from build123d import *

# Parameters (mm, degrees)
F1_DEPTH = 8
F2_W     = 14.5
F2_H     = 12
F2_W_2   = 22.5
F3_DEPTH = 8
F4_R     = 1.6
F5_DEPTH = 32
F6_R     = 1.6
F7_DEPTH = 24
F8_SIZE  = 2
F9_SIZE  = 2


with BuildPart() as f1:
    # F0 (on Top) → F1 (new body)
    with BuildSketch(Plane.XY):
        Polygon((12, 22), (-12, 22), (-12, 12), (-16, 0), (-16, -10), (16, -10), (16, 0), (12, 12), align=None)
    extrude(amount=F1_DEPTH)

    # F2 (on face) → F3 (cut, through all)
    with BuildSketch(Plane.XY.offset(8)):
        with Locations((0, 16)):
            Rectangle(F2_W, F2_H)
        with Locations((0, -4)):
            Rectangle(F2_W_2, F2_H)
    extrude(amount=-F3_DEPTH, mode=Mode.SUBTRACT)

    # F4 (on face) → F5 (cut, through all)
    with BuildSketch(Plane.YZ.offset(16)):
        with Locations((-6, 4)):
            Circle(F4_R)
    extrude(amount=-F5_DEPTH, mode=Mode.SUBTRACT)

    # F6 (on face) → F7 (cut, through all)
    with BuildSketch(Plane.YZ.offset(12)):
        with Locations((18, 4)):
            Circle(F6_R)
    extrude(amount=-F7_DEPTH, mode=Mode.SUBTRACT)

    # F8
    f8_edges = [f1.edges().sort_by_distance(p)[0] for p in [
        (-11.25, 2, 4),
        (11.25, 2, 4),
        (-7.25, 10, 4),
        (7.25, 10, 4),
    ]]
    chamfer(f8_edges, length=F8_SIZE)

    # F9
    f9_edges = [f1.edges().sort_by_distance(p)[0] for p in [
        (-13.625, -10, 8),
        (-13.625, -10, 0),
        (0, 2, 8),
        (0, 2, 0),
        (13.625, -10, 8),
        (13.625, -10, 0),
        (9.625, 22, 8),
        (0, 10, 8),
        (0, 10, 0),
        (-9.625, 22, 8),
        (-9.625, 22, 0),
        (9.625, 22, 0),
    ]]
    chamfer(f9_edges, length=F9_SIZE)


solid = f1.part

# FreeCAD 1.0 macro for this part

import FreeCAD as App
import Part
import Sketcher
Q = App.Units.Quantity


def edges_at(feature, points):
    """Names of the edges that pass closest to the given points."""
    edges = feature.Shape.Edges
    near = lambda p: min(range(len(edges)), key=lambda i: edges[i].distToShape(Part.Vertex(*p))[0])
    return sorted({f"Edge{near(p) + 1}" for p in points})


def add_polygon(sketch, points):
    """Adds a closed chain of lines whose ends are joined by coincident constraints."""
    first, n = sketch.GeometryCount, len(points)
    for a, b in zip(points, points[1:] + points[:1]):
        sketch.addGeometry(Part.LineSegment(App.Vector(*a, 0), App.Vector(*b, 0)), False)
    for i in range(n):
        sketch.addConstraint(Sketcher.Constraint("Coincident", first + i, 2, first + (i + 1) % n, 1))

doc = App.newDocument("Part")
params = doc.addObject("Spreadsheet::Sheet", "Params")
for row, (alias, value) in enumerate([
    ("sketch1_width", "24 mm"),
    ("sketch1_width2", "32 mm"),
    ("sketch1_height", "10 mm"),
    ("pad1_length", "8 mm"),
    ("sketch2_height", "12 mm"),
    ("sketch2_width", "14.5 mm"),
    ("sketch2_width2", "22.5 mm"),
    ("sketch3_diameter", "3.2 mm"),
    ("sketch4_diameter", "3.2 mm"),
    ("chamfer_size", "2 mm"),
    ("chamfer2_size", "2 mm"),
], start=1):
    params.set(f"A{row}", alias)
    params.set(f"B{row}", "=" + value)
    params.setAlias(f"B{row}", alias)

body = doc.addObject("PartDesign::Body", "Body")

# Sketch on XY plane
sketch1 = body.newObject("Sketcher::SketchObject", "Sketch")
sketch1.AttachmentSupport = (doc.getObject("XY_Plane"), [""])
sketch1.MapMode = "FlatFace"
add_polygon(sketch1, [(12, 22), (-12, 22), (-12, 12), (-16, 0), (-16, -10), (16, -10), (16, 0), (12, 12)])  # lines 0-7
sketch1.addConstraint(Sketcher.Constraint("Horizontal", 0))
sketch1.addConstraint(Sketcher.Constraint("Vertical", 1))
sketch1.addConstraint(Sketcher.Constraint("Vertical", 3))
sketch1.addConstraint(Sketcher.Constraint("Horizontal", 4))
sketch1.addConstraint(Sketcher.Constraint("Vertical", 5))
sketch1.addConstraint(Sketcher.Constraint("Vertical", 7))
sketch1.addConstraint(Sketcher.Constraint("Symmetric", 2, 2, 5, 2, -1, 1))
sketch1.addConstraint(Sketcher.Constraint("Symmetric", 1, 2, 6, 2, -2))
sketch1.addConstraint(Sketcher.Constraint("PointOnObject", 2, 2, -1))
sketch1.addConstraint(Sketcher.Constraint("Equal", 1, 3))
sketch1.addConstraint(Sketcher.Constraint("DistanceX", 0, 2, 0, 1, Q("24 mm")))
sketch1.addConstraint(Sketcher.Constraint("DistanceX", 4, 1, 4, 2, Q("32 mm")))
sketch1.addConstraint(Sketcher.Constraint("DistanceY", 1, 2, 1, 1, Q("10 mm")))
sketch1.addConstraint(Sketcher.Constraint("DistanceY", -1, 1, 0, 2, Q("22 mm")))
sketch1.setExpression("Constraints[18]", "Params.sketch1_width")
sketch1.setExpression("Constraints[19]", "Params.sketch1_width2")
sketch1.setExpression("Constraints[20]", "Params.sketch1_height")
pad1 = body.newObject("PartDesign::Pad", "Pad")
pad1.Profile = sketch1
pad1.setExpression("Length", "Params.pad1_length")

# Sketch on XY plane
sketch2 = body.newObject("Sketcher::SketchObject", "Sketch001")
sketch2.AttachmentSupport = (doc.getObject("XY_Plane"), [""])
sketch2.MapMode = "FlatFace"
sketch2.AttachmentOffset = App.Placement(App.Vector(0, 0, 8), App.Rotation())
add_polygon(sketch2, [(-7, 22), (-7, 10), (7, 10), (7, 22)])  # lines 0-3
add_polygon(sketch2, [(-11, 2), (-11, -10), (11, -10), (11, 2)])  # lines 4-7
sketch2.addConstraint(Sketcher.Constraint("Vertical", 0))
sketch2.addConstraint(Sketcher.Constraint("Horizontal", 1))
sketch2.addConstraint(Sketcher.Constraint("Vertical", 2))
sketch2.addConstraint(Sketcher.Constraint("Horizontal", 3))
sketch2.addConstraint(Sketcher.Constraint("Vertical", 4))
sketch2.addConstraint(Sketcher.Constraint("Horizontal", 5))
sketch2.addConstraint(Sketcher.Constraint("Vertical", 6))
sketch2.addConstraint(Sketcher.Constraint("Horizontal", 7))
sketch2.addConstraint(Sketcher.Constraint("Equal", 2, 4))
sketch2.addConstraint(Sketcher.Constraint("DistanceY", 0, 2, 0, 1, Q("12 mm")))
sketch2.addConstraint(Sketcher.Constraint("DistanceX", 1, 1, 1, 2, Q("14.5 mm")))
sketch2.addConstraint(Sketcher.Constraint("DistanceX", 5, 1, 5, 2, Q("22.5 mm")))
sketch2.addConstraint(Sketcher.Constraint("DistanceY", -1, 1, 0, 2, Q("10 mm")))
sketch2.addConstraint(Sketcher.Constraint("DistanceY", 4, 2, -1, 1, Q("10 mm")))
sketch2.addConstraint(Sketcher.Constraint("DistanceX", 4, 2, 0, 2, Q("4 mm")))
sketch2.addConstraint(Sketcher.Constraint("DistanceX", 0, 2, -1, 1, Q("7.25 mm")))
sketch2.setExpression("Constraints[17]", "Params.sketch2_height")
sketch2.setExpression("Constraints[18]", "Params.sketch2_width")
sketch2.setExpression("Constraints[19]", "Params.sketch2_width2")
pocket1 = body.newObject("PartDesign::Pocket", "Pocket")
pocket1.Profile = sketch2
pocket1.Type = "ThroughAll"

# Sketch on YZ plane
sketch3 = body.newObject("Sketcher::SketchObject", "Sketch002")
sketch3.AttachmentSupport = (doc.getObject("YZ_Plane"), [""])
sketch3.MapMode = "FlatFace"
sketch3.AttachmentOffset = App.Placement(App.Vector(0, 0, 16), App.Rotation())
sketch3.addGeometry(Part.Circle(App.Vector(-6, 4, 0), App.Vector(0, 0, 1), 1.6), False)
sketch3.addConstraint(Sketcher.Constraint("Diameter", 0, Q("3.2 mm")))
sketch3.addConstraint(Sketcher.Constraint("DistanceX", 0, 3, -1, 1, Q("6 mm")))
sketch3.addConstraint(Sketcher.Constraint("DistanceY", -1, 1, 0, 3, Q("4 mm")))
sketch3.setExpression("Constraints[0]", "Params.sketch3_diameter")
pocket2 = body.newObject("PartDesign::Pocket", "Pocket001")
pocket2.Profile = sketch3
pocket2.Type = "ThroughAll"

# Sketch on YZ plane
sketch4 = body.newObject("Sketcher::SketchObject", "Sketch003")
sketch4.AttachmentSupport = (doc.getObject("YZ_Plane"), [""])
sketch4.MapMode = "FlatFace"
sketch4.AttachmentOffset = App.Placement(App.Vector(0, 0, 12), App.Rotation())
sketch4.addGeometry(Part.Circle(App.Vector(18, 4, 0), App.Vector(0, 0, 1), 1.6), False)
sketch4.addConstraint(Sketcher.Constraint("Diameter", 0, Q("3.2 mm")))
sketch4.addConstraint(Sketcher.Constraint("DistanceX", -1, 1, 0, 3, Q("18 mm")))
sketch4.addConstraint(Sketcher.Constraint("DistanceY", -1, 1, 0, 3, Q("4 mm")))
sketch4.setExpression("Constraints[0]", "Params.sketch4_diameter")
pocket3 = body.newObject("PartDesign::Pocket", "Pocket002")
pocket3.Profile = sketch4
pocket3.Type = "ThroughAll"
doc.recompute()

chamfer = body.newObject("PartDesign::Chamfer", "Chamfer")
chamfer.Base = (pocket3, edges_at(pocket3, [
    (-11.25, 2, 4),
    (11.25, 2, 4),
    (-7.25, 10, 4),
    (7.25, 10, 4),
]))
chamfer.setExpression("Size", "Params.chamfer_size")
doc.recompute()

chamfer2 = body.newObject("PartDesign::Chamfer", "Chamfer001")
chamfer2.Base = (chamfer, edges_at(chamfer, [
    (-13.625, -10, 8),
    (-13.625, -10, 0),
    (0, 2, 8),
    (0, 2, 0),
    (13.625, -10, 8),
    (13.625, -10, 0),
    (9.625, 22, 8),
    (0, 10, 8),
    (0, 10, 0),
    (-9.625, 22, 8),
    (-9.625, 22, 0),
    (9.625, 22, 0),
]))
chamfer2.setExpression("Size", "Params.chamfer2_size")

doc.recompute()
